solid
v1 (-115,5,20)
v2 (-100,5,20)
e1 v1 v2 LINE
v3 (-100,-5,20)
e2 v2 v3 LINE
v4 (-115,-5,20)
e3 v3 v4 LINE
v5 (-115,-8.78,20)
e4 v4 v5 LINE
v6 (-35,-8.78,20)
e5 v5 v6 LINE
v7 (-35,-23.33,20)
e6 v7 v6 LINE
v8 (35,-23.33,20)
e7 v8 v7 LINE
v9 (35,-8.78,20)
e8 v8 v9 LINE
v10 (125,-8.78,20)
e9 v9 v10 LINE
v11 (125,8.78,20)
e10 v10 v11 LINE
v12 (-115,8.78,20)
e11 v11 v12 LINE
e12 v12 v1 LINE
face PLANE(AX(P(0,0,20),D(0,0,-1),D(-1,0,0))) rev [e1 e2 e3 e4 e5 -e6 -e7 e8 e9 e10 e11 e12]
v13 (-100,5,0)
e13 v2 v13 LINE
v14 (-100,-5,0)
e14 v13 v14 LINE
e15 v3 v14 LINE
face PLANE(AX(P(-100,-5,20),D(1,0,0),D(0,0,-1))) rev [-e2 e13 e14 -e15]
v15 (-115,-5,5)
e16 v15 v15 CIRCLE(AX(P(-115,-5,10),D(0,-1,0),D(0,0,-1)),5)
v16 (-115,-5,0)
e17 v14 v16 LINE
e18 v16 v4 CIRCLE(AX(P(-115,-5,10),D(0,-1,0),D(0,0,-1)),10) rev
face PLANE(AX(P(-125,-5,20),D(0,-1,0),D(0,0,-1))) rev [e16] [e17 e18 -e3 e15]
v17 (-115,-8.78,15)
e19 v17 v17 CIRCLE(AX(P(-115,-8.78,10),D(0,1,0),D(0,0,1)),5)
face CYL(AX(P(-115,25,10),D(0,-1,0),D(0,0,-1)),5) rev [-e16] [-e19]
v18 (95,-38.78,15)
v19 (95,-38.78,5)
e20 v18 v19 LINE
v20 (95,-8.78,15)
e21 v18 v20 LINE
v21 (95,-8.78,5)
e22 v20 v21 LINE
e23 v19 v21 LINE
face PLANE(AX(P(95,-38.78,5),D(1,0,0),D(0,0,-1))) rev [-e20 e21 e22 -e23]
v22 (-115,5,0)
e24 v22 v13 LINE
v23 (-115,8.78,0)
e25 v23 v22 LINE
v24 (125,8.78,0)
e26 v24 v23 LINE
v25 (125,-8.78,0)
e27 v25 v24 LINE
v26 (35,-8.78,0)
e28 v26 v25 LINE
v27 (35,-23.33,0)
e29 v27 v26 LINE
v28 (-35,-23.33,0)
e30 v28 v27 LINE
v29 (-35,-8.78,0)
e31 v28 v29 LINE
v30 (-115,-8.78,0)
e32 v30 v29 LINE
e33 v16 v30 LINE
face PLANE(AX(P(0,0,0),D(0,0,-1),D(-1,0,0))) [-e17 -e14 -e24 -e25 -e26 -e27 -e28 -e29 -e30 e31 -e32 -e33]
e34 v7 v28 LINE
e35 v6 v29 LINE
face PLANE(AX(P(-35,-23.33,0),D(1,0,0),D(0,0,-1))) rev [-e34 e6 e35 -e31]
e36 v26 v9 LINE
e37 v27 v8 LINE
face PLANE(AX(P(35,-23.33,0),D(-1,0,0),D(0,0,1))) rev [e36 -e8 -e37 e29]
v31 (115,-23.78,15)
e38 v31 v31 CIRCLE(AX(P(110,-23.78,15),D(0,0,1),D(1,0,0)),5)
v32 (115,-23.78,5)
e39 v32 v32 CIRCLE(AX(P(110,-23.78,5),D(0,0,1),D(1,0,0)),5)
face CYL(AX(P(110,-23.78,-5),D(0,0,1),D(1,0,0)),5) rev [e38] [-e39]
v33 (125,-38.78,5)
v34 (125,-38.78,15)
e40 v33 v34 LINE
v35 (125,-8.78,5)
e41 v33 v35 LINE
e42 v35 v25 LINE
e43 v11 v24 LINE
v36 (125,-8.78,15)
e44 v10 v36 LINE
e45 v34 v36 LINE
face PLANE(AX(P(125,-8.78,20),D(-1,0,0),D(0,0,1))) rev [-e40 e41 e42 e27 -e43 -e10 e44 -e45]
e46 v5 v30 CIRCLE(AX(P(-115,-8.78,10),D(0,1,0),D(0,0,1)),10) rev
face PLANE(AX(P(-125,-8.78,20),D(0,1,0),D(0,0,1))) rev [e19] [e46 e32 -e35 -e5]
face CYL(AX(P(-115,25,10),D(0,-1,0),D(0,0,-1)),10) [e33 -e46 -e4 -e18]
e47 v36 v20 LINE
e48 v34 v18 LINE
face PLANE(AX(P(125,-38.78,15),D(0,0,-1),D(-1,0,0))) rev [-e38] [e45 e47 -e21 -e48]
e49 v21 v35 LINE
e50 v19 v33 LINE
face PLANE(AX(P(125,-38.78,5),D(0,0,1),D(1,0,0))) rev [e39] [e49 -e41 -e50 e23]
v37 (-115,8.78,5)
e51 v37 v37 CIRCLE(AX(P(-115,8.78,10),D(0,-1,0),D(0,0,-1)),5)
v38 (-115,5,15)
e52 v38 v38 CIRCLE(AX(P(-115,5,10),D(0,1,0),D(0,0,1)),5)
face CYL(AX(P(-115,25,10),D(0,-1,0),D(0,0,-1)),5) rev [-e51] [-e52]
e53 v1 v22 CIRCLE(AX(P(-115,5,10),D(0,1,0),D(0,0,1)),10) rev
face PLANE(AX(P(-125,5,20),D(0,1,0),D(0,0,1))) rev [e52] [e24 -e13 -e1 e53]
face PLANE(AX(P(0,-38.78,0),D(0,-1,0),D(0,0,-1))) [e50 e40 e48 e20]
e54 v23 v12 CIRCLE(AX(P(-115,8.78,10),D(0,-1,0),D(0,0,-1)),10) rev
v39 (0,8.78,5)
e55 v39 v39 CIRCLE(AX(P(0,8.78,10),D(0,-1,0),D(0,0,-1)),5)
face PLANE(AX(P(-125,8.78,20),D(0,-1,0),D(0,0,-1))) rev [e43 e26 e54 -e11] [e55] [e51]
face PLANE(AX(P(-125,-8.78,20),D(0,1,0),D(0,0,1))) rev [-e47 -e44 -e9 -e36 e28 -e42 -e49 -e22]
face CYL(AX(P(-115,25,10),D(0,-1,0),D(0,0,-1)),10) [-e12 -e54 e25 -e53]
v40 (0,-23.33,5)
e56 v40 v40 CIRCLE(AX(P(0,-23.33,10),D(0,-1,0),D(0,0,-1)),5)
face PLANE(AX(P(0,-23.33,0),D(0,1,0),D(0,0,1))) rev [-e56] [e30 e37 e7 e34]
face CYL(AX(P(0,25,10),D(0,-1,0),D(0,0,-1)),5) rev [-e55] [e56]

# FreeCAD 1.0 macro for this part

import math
import FreeCAD as App
import Part
import Sketcher

V = App.Vector


def add_polygon(sketch, points):
    """Adds a closed chain of lines whose ends are joined by coincident constraints."""
    first, n = sketch.GeometryCount, len(points)
    for a, b in zip(points, points[1:] + points[:1]):
        sketch.addGeometry(Part.LineSegment(App.Vector(*a, 0), App.Vector(*b, 0)), False)
    for i in range(n):
        sketch.addConstraint(Sketcher.Constraint("Coincident", first + i, 2, first + (i + 1) % n, 1))

doc = App.newDocument("Part")
body = doc.addObject("PartDesign::Body", "Body")

# Sketch on XY plane
sketch1 = body.newObject("Sketcher::SketchObject", "Sketch")
sketch1.AttachmentSupport = (doc.getObject("XY_Plane"), [""])
sketch1.MapMode = "FlatFace"
add_polygon(sketch1, [(-125, -8.8), (125, -8.8), (125, 8.8), (-125, 8.8), (-125, 5), (-100, 5), (-100, -5), (-125, -5)])  # lines 0-7
sketch1.addConstraint([
    Sketcher.Constraint("Horizontal", 0),
    Sketcher.Constraint("Vertical", 1),
    Sketcher.Constraint("Horizontal", 2),
    Sketcher.Constraint("Vertical", 3),
    Sketcher.Constraint("Horizontal", 4),
    Sketcher.Constraint("Vertical", 5),
    Sketcher.Constraint("Horizontal", 6),
    Sketcher.Constraint("Vertical", 7),
    Sketcher.Constraint("Symmetric", 0, 2, 2, 2, -1, 1),
    Sketcher.Constraint("Symmetric", 3, 2, 6, 2, -1),
    Sketcher.Constraint("DistanceX", 0, 1, 0, 2, 250.0),
    Sketcher.Constraint("DistanceX", 4, 1, 4, 2, 25.0),
    Sketcher.Constraint("DistanceY", 5, 2, 5, 1, 10.0),
    Sketcher.Constraint("DistanceY", 1, 1, 1, 2, 17.56),
])
pad1 = body.newObject("PartDesign::Pad", "Pad")
pad1.Profile = sketch1
pad1.Length = 20

# Sketch on XZ plane
sketch2 = body.newObject("Sketcher::SketchObject", "Sketch001")
sketch2.AttachmentSupport = (doc.getObject("XZ_Plane"), [""])
sketch2.MapMode = "FlatFace"
sketch2.AttachmentOffset = App.Placement(V(0, 0, -5), App.Rotation())
sketch2.addGeometry([
    Part.Circle(V(-115, 10, 0), V(0, 0, 1), 5),  # 0
    Part.Circle(V(0, 10, 0), V(0, 0, 1), 5),  # 1
    Part.LineSegment(V(-115, 20, 0), V(-115, 22, 0)),  # 2
    Part.LineSegment(V(-115, 22, 0), V(-130, 22, 0)),  # 3
    Part.LineSegment(V(-130, 22, 0), V(-130, -2.2, 0)),  # 4
    Part.LineSegment(V(-130, -2.2, 0), V(-115, -2.2, 0)),  # 5
    Part.LineSegment(V(-115, -2.2, 0), V(-115, 0, 0)),  # 6
    Part.ArcOfCircle(Part.Circle(V(-115, 10, 0), V(0, 0, 1), 10), math.radians(90), math.radians(270)),  # 7
], False)
sketch2.addConstraint([
    Sketcher.Constraint("Coincident", 2, 2, 3, 1),
    Sketcher.Constraint("Coincident", 3, 2, 4, 1),
    Sketcher.Constraint("Coincident", 4, 2, 5, 1),
    Sketcher.Constraint("Coincident", 5, 2, 6, 1),
    Sketcher.Constraint("Coincident", 6, 2, 7, 2),
    Sketcher.Constraint("Coincident", 7, 1, 2, 1),
    Sketcher.Constraint("Vertical", 2),
    Sketcher.Constraint("Horizontal", 3),
    Sketcher.Constraint("Vertical", 4),
    Sketcher.Constraint("Horizontal", 5),
    Sketcher.Constraint("Vertical", 6),
    Sketcher.Constraint("Coincident", 7, 3, 0, 3),
    Sketcher.Constraint("Equal", 0, 1),
    Sketcher.Constraint("PointOnObject", 1, 3, -2),
    Sketcher.Constraint("PointOnObject", 6, 2, -1),
    Sketcher.Constraint("Horizontal", 0, 3, 1, 3),
    Sketcher.Constraint("Vertical", 7, 3, 2, 2),
    Sketcher.Constraint("Vertical", 2, 2, 5, 2),
    Sketcher.Constraint("Diameter", 0, 10.0),
    Sketcher.Constraint("Radius", 7, 10.0),
    Sketcher.Constraint("DistanceX", 3, 2, 3, 1, 15.0),
    Sketcher.Constraint("DistanceX", 0, 3, -1, 1, 115.0),
    Sketcher.Constraint("DistanceY", 2, 1, 2, 2, 2.029142),
    Sketcher.Constraint("DistanceY", 4, 2, 4, 1, 24.222235),
])
pocket1 = body.newObject("PartDesign::Pocket", "Pocket")
pocket1.Profile = sketch2
pocket1.Length = 40
pocket1.Midplane = True

# Sketch on XZ plane
sketch3 = body.newObject("Sketcher::SketchObject", "Sketch002")
sketch3.AttachmentSupport = (doc.getObject("XZ_Plane"), [""])
sketch3.MapMode = "FlatFace"
sketch3.AttachmentOffset = App.Placement(V(0, 0, 8.78), App.Rotation())
add_polygon(sketch3, [(-35, 20), (-35, 0), (35, 0), (35, 20)])  # lines 0-3
sketch3.addGeometry(Part.Circle(V(0, 10, 0), V(0, 0, 1), 5), False)  # 4
sketch3.addConstraint([
    Sketcher.Constraint("Vertical", 0),
    Sketcher.Constraint("Horizontal", 1),
    Sketcher.Constraint("Vertical", 2),
    Sketcher.Constraint("Horizontal", 3),
    Sketcher.Constraint("Symmetric", 0, 2, 1, 2, -1, 1),
    Sketcher.Constraint("PointOnObject", 4, 3, -2),
    Sketcher.Constraint("Diameter", 4, 10.0),
    Sketcher.Constraint("DistanceX", 1, 1, 1, 2, 70.0),
    Sketcher.Constraint("DistanceY", 0, 2, 0, 1, 20.0),
    Sketcher.Constraint("DistanceY", -1, 1, 4, 3, 10.0),
])
pad2 = body.newObject("PartDesign::Pad", "Pad001")
pad2.Profile = sketch3
pad2.Length = 14.55

# Sketch on XZ plane
sketch4 = body.newObject("Sketcher::SketchObject", "Sketch003")
sketch4.AttachmentSupport = (doc.getObject("XZ_Plane"), [""])
sketch4.MapMode = "FlatFace"
sketch4.AttachmentOffset = App.Placement(V(0, 0, 8.78), App.Rotation())
add_polygon(sketch4, [(95, 15), (95, 5), (125, 5), (125, 15)])  # lines 0-3
sketch4.addConstraint([
    Sketcher.Constraint("Vertical", 0),
    Sketcher.Constraint("Horizontal", 1),
    Sketcher.Constraint("Vertical", 2),
    Sketcher.Constraint("Horizontal", 3),
    Sketcher.Constraint("DistanceX", 1, 1, 1, 2, 30.0),
    Sketcher.Constraint("DistanceY", 0, 2, 0, 1, 10.0),
    Sketcher.Constraint("DistanceX", -1, 1, 0, 2, 95.0),
    Sketcher.Constraint("DistanceY", -1, 1, 0, 2, 5.0),
])
pad3 = body.newObject("PartDesign::Pad", "Pad002")
pad3.Profile = sketch4
pad3.Length = 30

# Sketch on XY plane
sketch5 = body.newObject("Sketcher::SketchObject", "Sketch004")
sketch5.AttachmentSupport = (doc.getObject("XY_Plane"), [""])
sketch5.MapMode = "FlatFace"
sketch5.AttachmentOffset = App.Placement(V(0, 0, 15), App.Rotation())
sketch5.addGeometry(Part.Circle(V(110, -24, 0), V(0, 0, 1), 5), False)
sketch5.addConstraint([
    Sketcher.Constraint("Diameter", 0, 10.0),
    Sketcher.Constraint("DistanceX", -1, 1, 0, 3, 110.0),
    Sketcher.Constraint("DistanceY", 0, 3, -1, 1, 23.78),
])
pocket2 = body.newObject("PartDesign::Pocket", "Pocket001")
pocket2.Profile = sketch5
pocket2.Length = 20

doc.recompute()
